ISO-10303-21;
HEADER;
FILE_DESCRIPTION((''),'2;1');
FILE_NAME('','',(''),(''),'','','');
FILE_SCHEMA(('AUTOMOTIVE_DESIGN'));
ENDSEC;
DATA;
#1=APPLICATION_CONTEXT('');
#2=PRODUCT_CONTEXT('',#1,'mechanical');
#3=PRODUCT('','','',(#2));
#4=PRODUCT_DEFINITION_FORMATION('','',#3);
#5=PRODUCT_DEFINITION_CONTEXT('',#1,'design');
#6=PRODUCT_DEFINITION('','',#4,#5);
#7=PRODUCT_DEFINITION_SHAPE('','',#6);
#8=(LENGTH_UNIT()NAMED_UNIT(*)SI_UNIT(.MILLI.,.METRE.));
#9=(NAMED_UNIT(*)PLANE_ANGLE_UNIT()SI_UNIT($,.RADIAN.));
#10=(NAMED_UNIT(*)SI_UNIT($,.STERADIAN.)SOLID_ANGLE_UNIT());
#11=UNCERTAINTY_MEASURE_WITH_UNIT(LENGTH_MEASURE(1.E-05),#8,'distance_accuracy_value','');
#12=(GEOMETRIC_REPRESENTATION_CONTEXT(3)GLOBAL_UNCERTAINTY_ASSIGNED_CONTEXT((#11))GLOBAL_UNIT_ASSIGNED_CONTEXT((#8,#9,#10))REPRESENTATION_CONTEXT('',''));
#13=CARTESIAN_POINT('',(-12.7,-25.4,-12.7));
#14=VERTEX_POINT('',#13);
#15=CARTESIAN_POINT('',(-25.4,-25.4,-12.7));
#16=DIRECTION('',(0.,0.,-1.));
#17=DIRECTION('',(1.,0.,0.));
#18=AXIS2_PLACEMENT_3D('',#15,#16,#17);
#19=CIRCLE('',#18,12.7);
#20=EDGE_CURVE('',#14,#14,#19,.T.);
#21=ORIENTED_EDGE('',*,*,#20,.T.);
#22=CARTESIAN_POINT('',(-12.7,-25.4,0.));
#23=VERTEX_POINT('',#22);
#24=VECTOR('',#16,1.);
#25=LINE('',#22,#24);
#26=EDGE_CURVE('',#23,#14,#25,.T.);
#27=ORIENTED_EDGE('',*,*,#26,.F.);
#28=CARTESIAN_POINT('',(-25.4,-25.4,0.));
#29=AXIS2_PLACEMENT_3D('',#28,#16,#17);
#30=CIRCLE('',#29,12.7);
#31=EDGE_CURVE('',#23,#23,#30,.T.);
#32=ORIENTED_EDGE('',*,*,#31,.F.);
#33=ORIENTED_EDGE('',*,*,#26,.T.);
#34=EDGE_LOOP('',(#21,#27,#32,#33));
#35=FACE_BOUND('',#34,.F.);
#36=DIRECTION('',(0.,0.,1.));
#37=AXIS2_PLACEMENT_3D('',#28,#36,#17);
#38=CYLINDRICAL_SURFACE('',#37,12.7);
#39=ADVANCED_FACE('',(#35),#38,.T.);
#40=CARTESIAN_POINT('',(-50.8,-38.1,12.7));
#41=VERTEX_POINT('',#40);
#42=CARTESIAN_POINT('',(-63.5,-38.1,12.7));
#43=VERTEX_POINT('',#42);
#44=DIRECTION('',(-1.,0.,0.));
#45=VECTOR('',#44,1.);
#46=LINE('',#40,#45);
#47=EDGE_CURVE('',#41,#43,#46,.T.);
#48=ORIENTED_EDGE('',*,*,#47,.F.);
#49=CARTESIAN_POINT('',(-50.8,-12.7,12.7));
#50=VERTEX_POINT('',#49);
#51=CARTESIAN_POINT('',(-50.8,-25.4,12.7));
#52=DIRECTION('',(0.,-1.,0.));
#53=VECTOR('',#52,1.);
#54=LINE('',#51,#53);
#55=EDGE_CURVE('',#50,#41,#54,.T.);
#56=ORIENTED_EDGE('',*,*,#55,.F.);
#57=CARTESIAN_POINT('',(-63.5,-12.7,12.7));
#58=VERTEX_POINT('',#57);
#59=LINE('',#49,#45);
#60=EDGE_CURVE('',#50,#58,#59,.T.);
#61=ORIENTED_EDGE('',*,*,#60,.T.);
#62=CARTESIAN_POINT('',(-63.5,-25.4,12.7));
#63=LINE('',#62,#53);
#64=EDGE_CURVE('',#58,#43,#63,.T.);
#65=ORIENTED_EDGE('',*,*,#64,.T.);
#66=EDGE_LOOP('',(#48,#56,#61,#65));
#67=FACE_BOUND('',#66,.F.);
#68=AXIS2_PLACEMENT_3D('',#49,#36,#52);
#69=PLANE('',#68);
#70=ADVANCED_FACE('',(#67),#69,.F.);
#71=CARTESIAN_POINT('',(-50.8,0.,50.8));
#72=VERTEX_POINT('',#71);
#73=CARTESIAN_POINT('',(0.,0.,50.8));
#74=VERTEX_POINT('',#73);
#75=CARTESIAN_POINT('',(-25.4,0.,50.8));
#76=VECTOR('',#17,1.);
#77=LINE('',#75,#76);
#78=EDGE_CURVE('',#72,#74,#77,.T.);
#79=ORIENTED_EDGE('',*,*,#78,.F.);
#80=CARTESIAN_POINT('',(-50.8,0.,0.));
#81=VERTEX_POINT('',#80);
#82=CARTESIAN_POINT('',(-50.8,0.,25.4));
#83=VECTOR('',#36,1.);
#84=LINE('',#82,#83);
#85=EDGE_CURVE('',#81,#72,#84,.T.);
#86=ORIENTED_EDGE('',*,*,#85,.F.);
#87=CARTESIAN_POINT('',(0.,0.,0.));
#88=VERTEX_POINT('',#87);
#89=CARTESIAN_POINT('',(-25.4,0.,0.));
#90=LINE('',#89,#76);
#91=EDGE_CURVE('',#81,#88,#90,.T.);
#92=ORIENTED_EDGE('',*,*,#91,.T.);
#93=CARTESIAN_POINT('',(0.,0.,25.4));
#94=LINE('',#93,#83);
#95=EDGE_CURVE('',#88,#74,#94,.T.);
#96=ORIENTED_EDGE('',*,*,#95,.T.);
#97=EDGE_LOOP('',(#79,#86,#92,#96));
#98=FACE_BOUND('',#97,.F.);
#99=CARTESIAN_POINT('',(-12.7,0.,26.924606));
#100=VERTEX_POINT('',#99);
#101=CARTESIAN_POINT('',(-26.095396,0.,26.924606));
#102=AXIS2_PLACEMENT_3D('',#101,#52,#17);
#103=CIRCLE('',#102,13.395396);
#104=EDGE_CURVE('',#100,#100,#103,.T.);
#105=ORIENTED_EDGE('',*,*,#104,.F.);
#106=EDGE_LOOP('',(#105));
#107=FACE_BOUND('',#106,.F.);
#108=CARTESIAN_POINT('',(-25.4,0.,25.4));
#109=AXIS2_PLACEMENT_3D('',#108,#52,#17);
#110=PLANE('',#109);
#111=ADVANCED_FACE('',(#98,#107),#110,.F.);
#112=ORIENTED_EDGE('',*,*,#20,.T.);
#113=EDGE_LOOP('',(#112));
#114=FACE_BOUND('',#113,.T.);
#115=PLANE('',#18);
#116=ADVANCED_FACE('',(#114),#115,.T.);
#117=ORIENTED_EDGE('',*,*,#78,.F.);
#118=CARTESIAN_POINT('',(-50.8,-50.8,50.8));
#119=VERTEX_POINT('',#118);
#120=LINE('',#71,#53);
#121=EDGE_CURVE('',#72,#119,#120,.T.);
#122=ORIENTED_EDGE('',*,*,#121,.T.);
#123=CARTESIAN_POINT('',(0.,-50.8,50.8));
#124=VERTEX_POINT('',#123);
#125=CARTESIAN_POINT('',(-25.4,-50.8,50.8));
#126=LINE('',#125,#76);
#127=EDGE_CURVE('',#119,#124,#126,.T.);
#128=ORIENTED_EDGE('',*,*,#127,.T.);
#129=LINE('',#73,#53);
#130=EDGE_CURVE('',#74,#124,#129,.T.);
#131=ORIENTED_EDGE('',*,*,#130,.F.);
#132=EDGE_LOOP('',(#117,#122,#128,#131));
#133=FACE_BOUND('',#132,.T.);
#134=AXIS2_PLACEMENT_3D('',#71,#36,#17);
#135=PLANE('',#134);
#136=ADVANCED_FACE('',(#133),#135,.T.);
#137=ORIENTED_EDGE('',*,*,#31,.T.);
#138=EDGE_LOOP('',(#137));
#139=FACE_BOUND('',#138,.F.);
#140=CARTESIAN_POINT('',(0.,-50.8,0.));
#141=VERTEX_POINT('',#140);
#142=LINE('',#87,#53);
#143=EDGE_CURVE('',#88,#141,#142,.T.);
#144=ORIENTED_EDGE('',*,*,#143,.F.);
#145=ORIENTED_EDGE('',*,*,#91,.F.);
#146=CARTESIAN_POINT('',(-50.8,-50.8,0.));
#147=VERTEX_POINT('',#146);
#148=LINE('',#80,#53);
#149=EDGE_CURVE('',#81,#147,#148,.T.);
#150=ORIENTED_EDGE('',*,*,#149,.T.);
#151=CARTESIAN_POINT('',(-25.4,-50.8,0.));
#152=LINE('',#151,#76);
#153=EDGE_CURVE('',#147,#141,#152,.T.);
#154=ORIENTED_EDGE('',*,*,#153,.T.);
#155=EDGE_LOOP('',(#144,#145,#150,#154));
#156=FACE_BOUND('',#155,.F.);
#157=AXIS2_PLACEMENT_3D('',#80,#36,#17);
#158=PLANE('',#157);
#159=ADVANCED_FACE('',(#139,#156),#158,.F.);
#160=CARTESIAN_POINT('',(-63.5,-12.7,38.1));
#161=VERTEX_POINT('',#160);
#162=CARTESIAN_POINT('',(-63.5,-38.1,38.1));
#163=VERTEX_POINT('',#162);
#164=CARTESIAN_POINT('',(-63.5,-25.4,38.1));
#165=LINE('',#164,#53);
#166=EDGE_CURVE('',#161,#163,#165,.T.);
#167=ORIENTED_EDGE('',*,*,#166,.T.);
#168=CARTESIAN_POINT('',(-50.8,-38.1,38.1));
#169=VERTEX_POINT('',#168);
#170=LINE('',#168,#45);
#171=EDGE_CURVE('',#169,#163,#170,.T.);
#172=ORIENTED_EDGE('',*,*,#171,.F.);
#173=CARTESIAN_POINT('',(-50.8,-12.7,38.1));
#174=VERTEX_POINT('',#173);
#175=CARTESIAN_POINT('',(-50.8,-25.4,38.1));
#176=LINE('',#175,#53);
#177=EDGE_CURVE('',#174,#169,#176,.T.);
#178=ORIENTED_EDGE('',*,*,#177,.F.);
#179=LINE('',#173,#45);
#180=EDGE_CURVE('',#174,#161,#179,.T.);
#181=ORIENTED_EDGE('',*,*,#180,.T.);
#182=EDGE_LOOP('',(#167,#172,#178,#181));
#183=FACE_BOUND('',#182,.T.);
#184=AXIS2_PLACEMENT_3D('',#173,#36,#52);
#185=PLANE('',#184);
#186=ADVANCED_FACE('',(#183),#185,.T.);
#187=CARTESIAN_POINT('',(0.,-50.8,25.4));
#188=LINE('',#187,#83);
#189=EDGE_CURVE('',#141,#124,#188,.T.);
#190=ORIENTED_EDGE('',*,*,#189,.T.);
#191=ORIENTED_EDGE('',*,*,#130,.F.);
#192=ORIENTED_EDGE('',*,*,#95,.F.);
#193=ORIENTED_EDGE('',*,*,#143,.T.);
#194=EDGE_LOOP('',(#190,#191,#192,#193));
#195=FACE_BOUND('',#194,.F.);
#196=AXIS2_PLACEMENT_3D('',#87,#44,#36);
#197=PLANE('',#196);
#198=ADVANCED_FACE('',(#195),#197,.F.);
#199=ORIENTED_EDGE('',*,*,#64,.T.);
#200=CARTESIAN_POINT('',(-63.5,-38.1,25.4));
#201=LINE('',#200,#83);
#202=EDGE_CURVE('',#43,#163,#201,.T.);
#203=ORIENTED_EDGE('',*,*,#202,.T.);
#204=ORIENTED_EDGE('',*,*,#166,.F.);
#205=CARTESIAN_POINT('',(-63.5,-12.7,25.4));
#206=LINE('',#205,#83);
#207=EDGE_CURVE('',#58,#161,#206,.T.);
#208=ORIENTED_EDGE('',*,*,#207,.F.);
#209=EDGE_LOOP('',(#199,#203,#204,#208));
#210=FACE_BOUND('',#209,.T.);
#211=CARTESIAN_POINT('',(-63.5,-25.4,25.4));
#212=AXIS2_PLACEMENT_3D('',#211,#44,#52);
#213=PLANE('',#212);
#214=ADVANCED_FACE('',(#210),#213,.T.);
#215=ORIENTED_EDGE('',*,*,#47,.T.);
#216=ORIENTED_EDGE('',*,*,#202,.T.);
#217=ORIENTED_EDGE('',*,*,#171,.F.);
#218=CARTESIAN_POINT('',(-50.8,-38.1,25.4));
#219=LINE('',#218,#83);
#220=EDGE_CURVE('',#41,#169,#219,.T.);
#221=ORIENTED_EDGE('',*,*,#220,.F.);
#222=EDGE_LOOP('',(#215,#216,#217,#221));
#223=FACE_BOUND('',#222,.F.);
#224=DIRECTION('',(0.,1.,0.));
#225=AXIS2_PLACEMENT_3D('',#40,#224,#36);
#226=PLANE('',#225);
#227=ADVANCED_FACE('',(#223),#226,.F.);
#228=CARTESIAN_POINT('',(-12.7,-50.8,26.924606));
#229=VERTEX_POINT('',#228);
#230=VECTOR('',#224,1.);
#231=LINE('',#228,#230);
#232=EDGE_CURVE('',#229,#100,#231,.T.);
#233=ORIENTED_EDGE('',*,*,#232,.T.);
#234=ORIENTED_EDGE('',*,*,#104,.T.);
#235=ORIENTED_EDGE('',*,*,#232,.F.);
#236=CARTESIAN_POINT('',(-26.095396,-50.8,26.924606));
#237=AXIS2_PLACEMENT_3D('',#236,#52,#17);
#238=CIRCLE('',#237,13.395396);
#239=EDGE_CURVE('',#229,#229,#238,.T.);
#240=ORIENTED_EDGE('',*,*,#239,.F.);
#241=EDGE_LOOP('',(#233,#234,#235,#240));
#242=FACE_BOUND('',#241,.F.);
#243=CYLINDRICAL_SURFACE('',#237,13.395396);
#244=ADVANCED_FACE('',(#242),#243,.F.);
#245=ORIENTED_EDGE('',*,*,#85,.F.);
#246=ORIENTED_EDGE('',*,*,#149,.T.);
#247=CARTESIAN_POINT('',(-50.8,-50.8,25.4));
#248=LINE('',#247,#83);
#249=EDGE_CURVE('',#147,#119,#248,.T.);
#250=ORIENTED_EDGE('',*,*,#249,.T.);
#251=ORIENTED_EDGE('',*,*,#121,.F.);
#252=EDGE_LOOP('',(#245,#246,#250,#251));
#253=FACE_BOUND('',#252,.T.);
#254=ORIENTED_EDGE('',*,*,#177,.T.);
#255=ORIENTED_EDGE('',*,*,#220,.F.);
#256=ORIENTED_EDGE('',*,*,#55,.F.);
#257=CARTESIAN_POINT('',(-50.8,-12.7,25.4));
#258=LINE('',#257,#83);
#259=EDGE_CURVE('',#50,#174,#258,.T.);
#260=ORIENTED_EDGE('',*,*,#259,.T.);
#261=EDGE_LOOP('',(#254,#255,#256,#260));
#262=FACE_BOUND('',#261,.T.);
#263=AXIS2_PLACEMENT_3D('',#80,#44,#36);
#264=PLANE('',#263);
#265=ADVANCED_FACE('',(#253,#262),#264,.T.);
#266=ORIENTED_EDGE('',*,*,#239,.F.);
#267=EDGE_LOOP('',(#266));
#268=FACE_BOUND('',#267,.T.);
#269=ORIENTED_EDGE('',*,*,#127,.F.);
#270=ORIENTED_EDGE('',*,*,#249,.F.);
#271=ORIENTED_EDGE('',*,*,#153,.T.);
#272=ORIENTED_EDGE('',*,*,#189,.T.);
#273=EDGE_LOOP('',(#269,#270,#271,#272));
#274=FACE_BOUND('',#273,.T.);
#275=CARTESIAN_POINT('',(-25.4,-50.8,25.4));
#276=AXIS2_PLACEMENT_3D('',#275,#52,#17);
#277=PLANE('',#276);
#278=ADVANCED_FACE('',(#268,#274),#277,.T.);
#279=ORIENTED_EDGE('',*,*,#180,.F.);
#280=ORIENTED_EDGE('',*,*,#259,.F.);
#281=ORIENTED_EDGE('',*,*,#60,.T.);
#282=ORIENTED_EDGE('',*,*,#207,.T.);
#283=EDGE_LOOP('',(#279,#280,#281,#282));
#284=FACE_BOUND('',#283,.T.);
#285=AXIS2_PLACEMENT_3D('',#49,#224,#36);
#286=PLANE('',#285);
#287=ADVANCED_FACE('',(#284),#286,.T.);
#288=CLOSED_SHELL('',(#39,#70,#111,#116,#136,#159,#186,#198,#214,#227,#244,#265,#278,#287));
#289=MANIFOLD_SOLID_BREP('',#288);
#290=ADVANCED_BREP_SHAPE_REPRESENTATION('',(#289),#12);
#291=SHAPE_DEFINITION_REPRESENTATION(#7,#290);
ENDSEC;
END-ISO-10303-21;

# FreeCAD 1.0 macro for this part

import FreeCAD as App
import Part
import Sketcher

V = App.Vector
Q = App.Units.Quantity

doc = App.newDocument("Part")
body = doc.addObject("PartDesign::Body", "Body")

# Sketch on XZ plane
sketch1 = body.newObject("Sketcher::SketchObject", "Sketch")
sketch1.AttachmentSupport = (doc.getObject("XZ_Plane"), [""])
sketch1.MapMode = "FlatFace"
sketch1.addGeometry([
    Part.LineSegment(V(-51, 51, 0), V(-51, 0, 0)),
    Part.LineSegment(V(-51, 0, 0), V(0, 0, 0)),
    Part.LineSegment(V(0, 0, 0), V(0, 51, 0)),
    Part.LineSegment(V(0, 51, 0), V(-51, 51, 0)),
], False)
sketch1.addConstraint([
    Sketcher.Constraint("Coincident", 0, 2, 1, 1),
    Sketcher.Constraint("Coincident", 1, 2, 2, 1),
    Sketcher.Constraint("Coincident", 2, 2, 3, 1),
    Sketcher.Constraint("Coincident", 3, 2, 0, 1),
    Sketcher.Constraint("Vertical", 0),
    Sketcher.Constraint("Horizontal", 1),
    Sketcher.Constraint("Vertical", 2),
    Sketcher.Constraint("Horizontal", 3),
    Sketcher.Constraint("Coincident", 1, 2, -1, 1),
    Sketcher.Constraint("Equal", 3, 0),
    Sketcher.Constraint("DistanceX", 1, 1, 1, 2, Q("2 in")),
])
pad1 = body.newObject("PartDesign::Pad", "Pad")
pad1.Profile = sketch1
pad1.Length = Q("2 in")

# Sketch on XZ plane
sketch2 = body.newObject("Sketcher::SketchObject", "Sketch001")
sketch2.AttachmentSupport = (doc.getObject("XZ_Plane"), [""])
sketch2.MapMode = "FlatFace"
sketch2.AttachmentOffset = App.Placement(V(0, 0, 2 * 25.4), App.Rotation())
sketch2.addGeometry(Part.Circle(V(-26, 27, 0), V(0, 0, 1), 13), False)
sketch2.addConstraint([
    Sketcher.Constraint("Diameter", 0, 26.790792),
    Sketcher.Constraint("DistanceX", 0, 3, -1, 1, 26.095396),
    Sketcher.Constraint("DistanceY", -1, 1, 0, 3, 26.924606),
])
pocket1 = body.newObject("PartDesign::Pocket", "Pocket")
pocket1.Profile = sketch2
pocket1.Length = Q("2.43 in")

# Sketch on YZ plane
sketch3 = body.newObject("Sketcher::SketchObject", "Sketch002")
sketch3.AttachmentSupport = (doc.getObject("YZ_Plane"), [""])
sketch3.MapMode = "FlatFace"
sketch3.AttachmentOffset = App.Placement(V(0, 0, -2 * 25.4), App.Rotation())
sketch3.addGeometry([
    Part.LineSegment(V(-13, 38, 0), V(-13, 13, 0)),
    Part.LineSegment(V(-13, 13, 0), V(-38, 13, 0)),
    Part.LineSegment(V(-38, 13, 0), V(-38, 38, 0)),
    Part.LineSegment(V(-38, 38, 0), V(-13, 38, 0)),
], False)
sketch3.addConstraint([
    Sketcher.Constraint("Coincident", 0, 2, 1, 1),
    Sketcher.Constraint("Coincident", 1, 2, 2, 1),
    Sketcher.Constraint("Coincident", 2, 2, 3, 1),
    Sketcher.Constraint("Coincident", 3, 2, 0, 1),
    Sketcher.Constraint("Vertical", 0),
    Sketcher.Constraint("Horizontal", 1),
    Sketcher.Constraint("Vertical", 2),
    Sketcher.Constraint("Horizontal", 3),
    Sketcher.Constraint("Equal", 3, 0),
    Sketcher.Constraint("DistanceX", 1, 2, 1, 1, Q("1 in")),
    Sketcher.Constraint("DistanceX", 0, 2, -1, 1, Q("0.5 in")),
    Sketcher.Constraint("DistanceY", -1, 1, 0, 2, Q("0.5 in")),
])
pad2 = body.newObject("PartDesign::Pad", "Pad001")
pad2.Profile = sketch3
pad2.Length = Q("0.5 in")
pad2.Reversed = True

# Sketch on XY plane
sketch4 = body.newObject("Sketcher::SketchObject", "Sketch003")
sketch4.AttachmentSupport = (doc.getObject("XY_Plane"), [""])
sketch4.MapMode = "FlatFace"
sketch4.addGeometry(Part.Circle(V(-25, -25, 0), V(0, 0, 1), 13), False)
sketch4.addConstraint([
    Sketcher.Constraint("Diameter", 0, Q("1 in")),
    Sketcher.Constraint("DistanceX", 0, 3, -1, 1, Q("1 in")),
    Sketcher.Constraint("DistanceY", 0, 3, -1, 1, Q("1 in")),
])
pad3 = body.newObject("PartDesign::Pad", "Pad002")
pad3.Profile = sketch4
pad3.Length = Q("0.5 in")
pad3.Reversed = True

doc.recompute()
